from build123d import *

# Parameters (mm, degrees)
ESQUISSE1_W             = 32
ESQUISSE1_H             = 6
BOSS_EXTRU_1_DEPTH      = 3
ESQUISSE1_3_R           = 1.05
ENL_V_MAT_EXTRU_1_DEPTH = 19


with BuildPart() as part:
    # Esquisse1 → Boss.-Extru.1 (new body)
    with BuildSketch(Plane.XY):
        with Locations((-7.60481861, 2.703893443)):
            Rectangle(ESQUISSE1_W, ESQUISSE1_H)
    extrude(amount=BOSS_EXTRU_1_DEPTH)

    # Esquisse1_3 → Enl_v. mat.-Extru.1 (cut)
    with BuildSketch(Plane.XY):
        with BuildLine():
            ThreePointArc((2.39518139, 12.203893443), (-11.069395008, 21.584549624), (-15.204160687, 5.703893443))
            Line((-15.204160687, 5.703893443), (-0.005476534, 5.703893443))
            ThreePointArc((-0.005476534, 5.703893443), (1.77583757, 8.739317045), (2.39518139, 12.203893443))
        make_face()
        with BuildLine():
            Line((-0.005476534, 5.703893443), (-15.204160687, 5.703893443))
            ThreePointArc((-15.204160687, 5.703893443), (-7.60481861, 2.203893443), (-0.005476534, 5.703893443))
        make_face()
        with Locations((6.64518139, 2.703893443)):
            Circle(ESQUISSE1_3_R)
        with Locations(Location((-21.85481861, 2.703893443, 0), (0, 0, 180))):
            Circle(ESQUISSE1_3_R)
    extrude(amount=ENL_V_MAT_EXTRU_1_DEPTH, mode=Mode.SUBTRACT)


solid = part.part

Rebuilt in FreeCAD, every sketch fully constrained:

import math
import FreeCAD as App
import Part
import Sketcher


def add_polygon(sketch, points):
    """Adds a closed chain of lines whose ends are joined by coincident constraints."""
    first, n = sketch.GeometryCount, len(points)
    for a, b in zip(points, points[1:] + points[:1]):
        sketch.addGeometry(Part.LineSegment(App.Vector(*a, 0), App.Vector(*b, 0)), False)
    for i in range(n):
        sketch.addConstraint(Sketcher.Constraint("Coincident", first + i, 2, first + (i + 1) % n, 1))

doc = App.newDocument("Part")
body = doc.addObject("PartDesign::Body", "Body")

sketch1 = doc.addObject("Sketcher::SketchObject", "Sketch")
body.addObject(sketch1)
sketch1.AttachmentSupport = (doc.XY_Plane, [""])
sketch1.MapMode = "FlatFace"
add_polygon(sketch1, [(-24, 6), (-24, 0), (8, 0), (8, 6)])
sketch1.addConstraint(Sketcher.Constraint("Vertical", 0))
sketch1.addConstraint(Sketcher.Constraint("Horizontal", 1))
sketch1.addConstraint(Sketcher.Constraint("Vertical", 2))
sketch1.addConstraint(Sketcher.Constraint("Horizontal", 3))
sketch1.addConstraint(Sketcher.Constraint("DistanceX", 1, 1, 1, 2, 32.0))
sketch1.addConstraint(Sketcher.Constraint("DistanceY", 0, 2, 0, 1, 6.0))
sketch1.addConstraint(Sketcher.Constraint("DistanceX", 0, 2, -1, 1, 23.604819))
sketch1.addConstraint(Sketcher.Constraint("DistanceY", 0, 2, -1, 1, 0.296107))
pad1 = doc.addObject("PartDesign::Pad", "Pad")
body.addObject(pad1)
pad1.Profile = sketch1
pad1.Length = 3

sketch2 = doc.addObject("Sketcher::SketchObject", "Sketch001")
body.addObject(sketch2)
sketch2.AttachmentSupport = (doc.XY_Plane, [""])
sketch2.MapMode = "FlatFace"
sketch2.addGeometry(Part.ArcOfCircle(Part.Circle(App.Vector(-7.6, 12.2, 0), App.Vector(0, 0, 1), 10), math.radians(0), math.radians(221)), False)
sketch2.addGeometry(Part.ArcOfCircle(Part.Circle(App.Vector(-7.6, 12.2, 0), App.Vector(0, 0, 1), 10), math.radians(-139), math.radians(-41)), False)
sketch2.addGeometry(Part.ArcOfCircle(Part.Circle(App.Vector(-7.6, 12.2, 0), App.Vector(0, 0, 1), 10), math.radians(-41), math.radians(0)), False)
sketch2.addGeometry(Part.Circle(App.Vector(6.6, 2.7, 0), App.Vector(0, 0, 1), 1.1), False)
sketch2.addGeometry(Part.Circle(App.Vector(-21.9, 2.7, 0), App.Vector(0, 0, 1), 1.1), False)
sketch2.addConstraint(Sketcher.Constraint("Tangent", 0, 2, 1, 1))
sketch2.addConstraint(Sketcher.Constraint("Tangent", 1, 2, 2, 1))
sketch2.addConstraint(Sketcher.Constraint("Tangent", 2, 2, 0, 1))
sketch2.addConstraint(Sketcher.Constraint("Equal", 3, 4))
sketch2.addConstraint(Sketcher.Constraint("Horizontal", 3, 3, 4, 3))
sketch2.addConstraint(Sketcher.Constraint("Horizontal", 0, 2, 1, 2))
sketch2.addConstraint(Sketcher.Constraint("Horizontal", 1, 3, 2, 2))
sketch2.addConstraint(Sketcher.Constraint("Radius", 0, 10.0))
sketch2.addConstraint(Sketcher.Constraint("Diameter", 3, 2.1))
sketch2.addConstraint(Sketcher.Constraint("DistanceY", 4, 3, 0, 2, 3.0))
sketch2.addConstraint(Sketcher.Constraint("DistanceY", 3, 3, 0, 3, 9.5))
sketch2.addConstraint(Sketcher.Constraint("DistanceX", 4, 3, 3, 3, 28.5))
sketch2.addConstraint(Sketcher.Constraint("DistanceX", 0, 3, 3, 3, 14.25))
sketch2.addConstraint(Sketcher.Constraint("DistanceX", 0, 3, -1, 1, 7.604819))
sketch2.addConstraint(Sketcher.Constraint("DistanceY", -1, 1, 0, 3, 12.203893))
pocket1 = doc.addObject("PartDesign::Pocket", "Pocket")
body.addObject(pocket1)
pocket1.Profile = sketch2
pocket1.Length = 19
pocket1.Reversed = True

doc.recompute()
